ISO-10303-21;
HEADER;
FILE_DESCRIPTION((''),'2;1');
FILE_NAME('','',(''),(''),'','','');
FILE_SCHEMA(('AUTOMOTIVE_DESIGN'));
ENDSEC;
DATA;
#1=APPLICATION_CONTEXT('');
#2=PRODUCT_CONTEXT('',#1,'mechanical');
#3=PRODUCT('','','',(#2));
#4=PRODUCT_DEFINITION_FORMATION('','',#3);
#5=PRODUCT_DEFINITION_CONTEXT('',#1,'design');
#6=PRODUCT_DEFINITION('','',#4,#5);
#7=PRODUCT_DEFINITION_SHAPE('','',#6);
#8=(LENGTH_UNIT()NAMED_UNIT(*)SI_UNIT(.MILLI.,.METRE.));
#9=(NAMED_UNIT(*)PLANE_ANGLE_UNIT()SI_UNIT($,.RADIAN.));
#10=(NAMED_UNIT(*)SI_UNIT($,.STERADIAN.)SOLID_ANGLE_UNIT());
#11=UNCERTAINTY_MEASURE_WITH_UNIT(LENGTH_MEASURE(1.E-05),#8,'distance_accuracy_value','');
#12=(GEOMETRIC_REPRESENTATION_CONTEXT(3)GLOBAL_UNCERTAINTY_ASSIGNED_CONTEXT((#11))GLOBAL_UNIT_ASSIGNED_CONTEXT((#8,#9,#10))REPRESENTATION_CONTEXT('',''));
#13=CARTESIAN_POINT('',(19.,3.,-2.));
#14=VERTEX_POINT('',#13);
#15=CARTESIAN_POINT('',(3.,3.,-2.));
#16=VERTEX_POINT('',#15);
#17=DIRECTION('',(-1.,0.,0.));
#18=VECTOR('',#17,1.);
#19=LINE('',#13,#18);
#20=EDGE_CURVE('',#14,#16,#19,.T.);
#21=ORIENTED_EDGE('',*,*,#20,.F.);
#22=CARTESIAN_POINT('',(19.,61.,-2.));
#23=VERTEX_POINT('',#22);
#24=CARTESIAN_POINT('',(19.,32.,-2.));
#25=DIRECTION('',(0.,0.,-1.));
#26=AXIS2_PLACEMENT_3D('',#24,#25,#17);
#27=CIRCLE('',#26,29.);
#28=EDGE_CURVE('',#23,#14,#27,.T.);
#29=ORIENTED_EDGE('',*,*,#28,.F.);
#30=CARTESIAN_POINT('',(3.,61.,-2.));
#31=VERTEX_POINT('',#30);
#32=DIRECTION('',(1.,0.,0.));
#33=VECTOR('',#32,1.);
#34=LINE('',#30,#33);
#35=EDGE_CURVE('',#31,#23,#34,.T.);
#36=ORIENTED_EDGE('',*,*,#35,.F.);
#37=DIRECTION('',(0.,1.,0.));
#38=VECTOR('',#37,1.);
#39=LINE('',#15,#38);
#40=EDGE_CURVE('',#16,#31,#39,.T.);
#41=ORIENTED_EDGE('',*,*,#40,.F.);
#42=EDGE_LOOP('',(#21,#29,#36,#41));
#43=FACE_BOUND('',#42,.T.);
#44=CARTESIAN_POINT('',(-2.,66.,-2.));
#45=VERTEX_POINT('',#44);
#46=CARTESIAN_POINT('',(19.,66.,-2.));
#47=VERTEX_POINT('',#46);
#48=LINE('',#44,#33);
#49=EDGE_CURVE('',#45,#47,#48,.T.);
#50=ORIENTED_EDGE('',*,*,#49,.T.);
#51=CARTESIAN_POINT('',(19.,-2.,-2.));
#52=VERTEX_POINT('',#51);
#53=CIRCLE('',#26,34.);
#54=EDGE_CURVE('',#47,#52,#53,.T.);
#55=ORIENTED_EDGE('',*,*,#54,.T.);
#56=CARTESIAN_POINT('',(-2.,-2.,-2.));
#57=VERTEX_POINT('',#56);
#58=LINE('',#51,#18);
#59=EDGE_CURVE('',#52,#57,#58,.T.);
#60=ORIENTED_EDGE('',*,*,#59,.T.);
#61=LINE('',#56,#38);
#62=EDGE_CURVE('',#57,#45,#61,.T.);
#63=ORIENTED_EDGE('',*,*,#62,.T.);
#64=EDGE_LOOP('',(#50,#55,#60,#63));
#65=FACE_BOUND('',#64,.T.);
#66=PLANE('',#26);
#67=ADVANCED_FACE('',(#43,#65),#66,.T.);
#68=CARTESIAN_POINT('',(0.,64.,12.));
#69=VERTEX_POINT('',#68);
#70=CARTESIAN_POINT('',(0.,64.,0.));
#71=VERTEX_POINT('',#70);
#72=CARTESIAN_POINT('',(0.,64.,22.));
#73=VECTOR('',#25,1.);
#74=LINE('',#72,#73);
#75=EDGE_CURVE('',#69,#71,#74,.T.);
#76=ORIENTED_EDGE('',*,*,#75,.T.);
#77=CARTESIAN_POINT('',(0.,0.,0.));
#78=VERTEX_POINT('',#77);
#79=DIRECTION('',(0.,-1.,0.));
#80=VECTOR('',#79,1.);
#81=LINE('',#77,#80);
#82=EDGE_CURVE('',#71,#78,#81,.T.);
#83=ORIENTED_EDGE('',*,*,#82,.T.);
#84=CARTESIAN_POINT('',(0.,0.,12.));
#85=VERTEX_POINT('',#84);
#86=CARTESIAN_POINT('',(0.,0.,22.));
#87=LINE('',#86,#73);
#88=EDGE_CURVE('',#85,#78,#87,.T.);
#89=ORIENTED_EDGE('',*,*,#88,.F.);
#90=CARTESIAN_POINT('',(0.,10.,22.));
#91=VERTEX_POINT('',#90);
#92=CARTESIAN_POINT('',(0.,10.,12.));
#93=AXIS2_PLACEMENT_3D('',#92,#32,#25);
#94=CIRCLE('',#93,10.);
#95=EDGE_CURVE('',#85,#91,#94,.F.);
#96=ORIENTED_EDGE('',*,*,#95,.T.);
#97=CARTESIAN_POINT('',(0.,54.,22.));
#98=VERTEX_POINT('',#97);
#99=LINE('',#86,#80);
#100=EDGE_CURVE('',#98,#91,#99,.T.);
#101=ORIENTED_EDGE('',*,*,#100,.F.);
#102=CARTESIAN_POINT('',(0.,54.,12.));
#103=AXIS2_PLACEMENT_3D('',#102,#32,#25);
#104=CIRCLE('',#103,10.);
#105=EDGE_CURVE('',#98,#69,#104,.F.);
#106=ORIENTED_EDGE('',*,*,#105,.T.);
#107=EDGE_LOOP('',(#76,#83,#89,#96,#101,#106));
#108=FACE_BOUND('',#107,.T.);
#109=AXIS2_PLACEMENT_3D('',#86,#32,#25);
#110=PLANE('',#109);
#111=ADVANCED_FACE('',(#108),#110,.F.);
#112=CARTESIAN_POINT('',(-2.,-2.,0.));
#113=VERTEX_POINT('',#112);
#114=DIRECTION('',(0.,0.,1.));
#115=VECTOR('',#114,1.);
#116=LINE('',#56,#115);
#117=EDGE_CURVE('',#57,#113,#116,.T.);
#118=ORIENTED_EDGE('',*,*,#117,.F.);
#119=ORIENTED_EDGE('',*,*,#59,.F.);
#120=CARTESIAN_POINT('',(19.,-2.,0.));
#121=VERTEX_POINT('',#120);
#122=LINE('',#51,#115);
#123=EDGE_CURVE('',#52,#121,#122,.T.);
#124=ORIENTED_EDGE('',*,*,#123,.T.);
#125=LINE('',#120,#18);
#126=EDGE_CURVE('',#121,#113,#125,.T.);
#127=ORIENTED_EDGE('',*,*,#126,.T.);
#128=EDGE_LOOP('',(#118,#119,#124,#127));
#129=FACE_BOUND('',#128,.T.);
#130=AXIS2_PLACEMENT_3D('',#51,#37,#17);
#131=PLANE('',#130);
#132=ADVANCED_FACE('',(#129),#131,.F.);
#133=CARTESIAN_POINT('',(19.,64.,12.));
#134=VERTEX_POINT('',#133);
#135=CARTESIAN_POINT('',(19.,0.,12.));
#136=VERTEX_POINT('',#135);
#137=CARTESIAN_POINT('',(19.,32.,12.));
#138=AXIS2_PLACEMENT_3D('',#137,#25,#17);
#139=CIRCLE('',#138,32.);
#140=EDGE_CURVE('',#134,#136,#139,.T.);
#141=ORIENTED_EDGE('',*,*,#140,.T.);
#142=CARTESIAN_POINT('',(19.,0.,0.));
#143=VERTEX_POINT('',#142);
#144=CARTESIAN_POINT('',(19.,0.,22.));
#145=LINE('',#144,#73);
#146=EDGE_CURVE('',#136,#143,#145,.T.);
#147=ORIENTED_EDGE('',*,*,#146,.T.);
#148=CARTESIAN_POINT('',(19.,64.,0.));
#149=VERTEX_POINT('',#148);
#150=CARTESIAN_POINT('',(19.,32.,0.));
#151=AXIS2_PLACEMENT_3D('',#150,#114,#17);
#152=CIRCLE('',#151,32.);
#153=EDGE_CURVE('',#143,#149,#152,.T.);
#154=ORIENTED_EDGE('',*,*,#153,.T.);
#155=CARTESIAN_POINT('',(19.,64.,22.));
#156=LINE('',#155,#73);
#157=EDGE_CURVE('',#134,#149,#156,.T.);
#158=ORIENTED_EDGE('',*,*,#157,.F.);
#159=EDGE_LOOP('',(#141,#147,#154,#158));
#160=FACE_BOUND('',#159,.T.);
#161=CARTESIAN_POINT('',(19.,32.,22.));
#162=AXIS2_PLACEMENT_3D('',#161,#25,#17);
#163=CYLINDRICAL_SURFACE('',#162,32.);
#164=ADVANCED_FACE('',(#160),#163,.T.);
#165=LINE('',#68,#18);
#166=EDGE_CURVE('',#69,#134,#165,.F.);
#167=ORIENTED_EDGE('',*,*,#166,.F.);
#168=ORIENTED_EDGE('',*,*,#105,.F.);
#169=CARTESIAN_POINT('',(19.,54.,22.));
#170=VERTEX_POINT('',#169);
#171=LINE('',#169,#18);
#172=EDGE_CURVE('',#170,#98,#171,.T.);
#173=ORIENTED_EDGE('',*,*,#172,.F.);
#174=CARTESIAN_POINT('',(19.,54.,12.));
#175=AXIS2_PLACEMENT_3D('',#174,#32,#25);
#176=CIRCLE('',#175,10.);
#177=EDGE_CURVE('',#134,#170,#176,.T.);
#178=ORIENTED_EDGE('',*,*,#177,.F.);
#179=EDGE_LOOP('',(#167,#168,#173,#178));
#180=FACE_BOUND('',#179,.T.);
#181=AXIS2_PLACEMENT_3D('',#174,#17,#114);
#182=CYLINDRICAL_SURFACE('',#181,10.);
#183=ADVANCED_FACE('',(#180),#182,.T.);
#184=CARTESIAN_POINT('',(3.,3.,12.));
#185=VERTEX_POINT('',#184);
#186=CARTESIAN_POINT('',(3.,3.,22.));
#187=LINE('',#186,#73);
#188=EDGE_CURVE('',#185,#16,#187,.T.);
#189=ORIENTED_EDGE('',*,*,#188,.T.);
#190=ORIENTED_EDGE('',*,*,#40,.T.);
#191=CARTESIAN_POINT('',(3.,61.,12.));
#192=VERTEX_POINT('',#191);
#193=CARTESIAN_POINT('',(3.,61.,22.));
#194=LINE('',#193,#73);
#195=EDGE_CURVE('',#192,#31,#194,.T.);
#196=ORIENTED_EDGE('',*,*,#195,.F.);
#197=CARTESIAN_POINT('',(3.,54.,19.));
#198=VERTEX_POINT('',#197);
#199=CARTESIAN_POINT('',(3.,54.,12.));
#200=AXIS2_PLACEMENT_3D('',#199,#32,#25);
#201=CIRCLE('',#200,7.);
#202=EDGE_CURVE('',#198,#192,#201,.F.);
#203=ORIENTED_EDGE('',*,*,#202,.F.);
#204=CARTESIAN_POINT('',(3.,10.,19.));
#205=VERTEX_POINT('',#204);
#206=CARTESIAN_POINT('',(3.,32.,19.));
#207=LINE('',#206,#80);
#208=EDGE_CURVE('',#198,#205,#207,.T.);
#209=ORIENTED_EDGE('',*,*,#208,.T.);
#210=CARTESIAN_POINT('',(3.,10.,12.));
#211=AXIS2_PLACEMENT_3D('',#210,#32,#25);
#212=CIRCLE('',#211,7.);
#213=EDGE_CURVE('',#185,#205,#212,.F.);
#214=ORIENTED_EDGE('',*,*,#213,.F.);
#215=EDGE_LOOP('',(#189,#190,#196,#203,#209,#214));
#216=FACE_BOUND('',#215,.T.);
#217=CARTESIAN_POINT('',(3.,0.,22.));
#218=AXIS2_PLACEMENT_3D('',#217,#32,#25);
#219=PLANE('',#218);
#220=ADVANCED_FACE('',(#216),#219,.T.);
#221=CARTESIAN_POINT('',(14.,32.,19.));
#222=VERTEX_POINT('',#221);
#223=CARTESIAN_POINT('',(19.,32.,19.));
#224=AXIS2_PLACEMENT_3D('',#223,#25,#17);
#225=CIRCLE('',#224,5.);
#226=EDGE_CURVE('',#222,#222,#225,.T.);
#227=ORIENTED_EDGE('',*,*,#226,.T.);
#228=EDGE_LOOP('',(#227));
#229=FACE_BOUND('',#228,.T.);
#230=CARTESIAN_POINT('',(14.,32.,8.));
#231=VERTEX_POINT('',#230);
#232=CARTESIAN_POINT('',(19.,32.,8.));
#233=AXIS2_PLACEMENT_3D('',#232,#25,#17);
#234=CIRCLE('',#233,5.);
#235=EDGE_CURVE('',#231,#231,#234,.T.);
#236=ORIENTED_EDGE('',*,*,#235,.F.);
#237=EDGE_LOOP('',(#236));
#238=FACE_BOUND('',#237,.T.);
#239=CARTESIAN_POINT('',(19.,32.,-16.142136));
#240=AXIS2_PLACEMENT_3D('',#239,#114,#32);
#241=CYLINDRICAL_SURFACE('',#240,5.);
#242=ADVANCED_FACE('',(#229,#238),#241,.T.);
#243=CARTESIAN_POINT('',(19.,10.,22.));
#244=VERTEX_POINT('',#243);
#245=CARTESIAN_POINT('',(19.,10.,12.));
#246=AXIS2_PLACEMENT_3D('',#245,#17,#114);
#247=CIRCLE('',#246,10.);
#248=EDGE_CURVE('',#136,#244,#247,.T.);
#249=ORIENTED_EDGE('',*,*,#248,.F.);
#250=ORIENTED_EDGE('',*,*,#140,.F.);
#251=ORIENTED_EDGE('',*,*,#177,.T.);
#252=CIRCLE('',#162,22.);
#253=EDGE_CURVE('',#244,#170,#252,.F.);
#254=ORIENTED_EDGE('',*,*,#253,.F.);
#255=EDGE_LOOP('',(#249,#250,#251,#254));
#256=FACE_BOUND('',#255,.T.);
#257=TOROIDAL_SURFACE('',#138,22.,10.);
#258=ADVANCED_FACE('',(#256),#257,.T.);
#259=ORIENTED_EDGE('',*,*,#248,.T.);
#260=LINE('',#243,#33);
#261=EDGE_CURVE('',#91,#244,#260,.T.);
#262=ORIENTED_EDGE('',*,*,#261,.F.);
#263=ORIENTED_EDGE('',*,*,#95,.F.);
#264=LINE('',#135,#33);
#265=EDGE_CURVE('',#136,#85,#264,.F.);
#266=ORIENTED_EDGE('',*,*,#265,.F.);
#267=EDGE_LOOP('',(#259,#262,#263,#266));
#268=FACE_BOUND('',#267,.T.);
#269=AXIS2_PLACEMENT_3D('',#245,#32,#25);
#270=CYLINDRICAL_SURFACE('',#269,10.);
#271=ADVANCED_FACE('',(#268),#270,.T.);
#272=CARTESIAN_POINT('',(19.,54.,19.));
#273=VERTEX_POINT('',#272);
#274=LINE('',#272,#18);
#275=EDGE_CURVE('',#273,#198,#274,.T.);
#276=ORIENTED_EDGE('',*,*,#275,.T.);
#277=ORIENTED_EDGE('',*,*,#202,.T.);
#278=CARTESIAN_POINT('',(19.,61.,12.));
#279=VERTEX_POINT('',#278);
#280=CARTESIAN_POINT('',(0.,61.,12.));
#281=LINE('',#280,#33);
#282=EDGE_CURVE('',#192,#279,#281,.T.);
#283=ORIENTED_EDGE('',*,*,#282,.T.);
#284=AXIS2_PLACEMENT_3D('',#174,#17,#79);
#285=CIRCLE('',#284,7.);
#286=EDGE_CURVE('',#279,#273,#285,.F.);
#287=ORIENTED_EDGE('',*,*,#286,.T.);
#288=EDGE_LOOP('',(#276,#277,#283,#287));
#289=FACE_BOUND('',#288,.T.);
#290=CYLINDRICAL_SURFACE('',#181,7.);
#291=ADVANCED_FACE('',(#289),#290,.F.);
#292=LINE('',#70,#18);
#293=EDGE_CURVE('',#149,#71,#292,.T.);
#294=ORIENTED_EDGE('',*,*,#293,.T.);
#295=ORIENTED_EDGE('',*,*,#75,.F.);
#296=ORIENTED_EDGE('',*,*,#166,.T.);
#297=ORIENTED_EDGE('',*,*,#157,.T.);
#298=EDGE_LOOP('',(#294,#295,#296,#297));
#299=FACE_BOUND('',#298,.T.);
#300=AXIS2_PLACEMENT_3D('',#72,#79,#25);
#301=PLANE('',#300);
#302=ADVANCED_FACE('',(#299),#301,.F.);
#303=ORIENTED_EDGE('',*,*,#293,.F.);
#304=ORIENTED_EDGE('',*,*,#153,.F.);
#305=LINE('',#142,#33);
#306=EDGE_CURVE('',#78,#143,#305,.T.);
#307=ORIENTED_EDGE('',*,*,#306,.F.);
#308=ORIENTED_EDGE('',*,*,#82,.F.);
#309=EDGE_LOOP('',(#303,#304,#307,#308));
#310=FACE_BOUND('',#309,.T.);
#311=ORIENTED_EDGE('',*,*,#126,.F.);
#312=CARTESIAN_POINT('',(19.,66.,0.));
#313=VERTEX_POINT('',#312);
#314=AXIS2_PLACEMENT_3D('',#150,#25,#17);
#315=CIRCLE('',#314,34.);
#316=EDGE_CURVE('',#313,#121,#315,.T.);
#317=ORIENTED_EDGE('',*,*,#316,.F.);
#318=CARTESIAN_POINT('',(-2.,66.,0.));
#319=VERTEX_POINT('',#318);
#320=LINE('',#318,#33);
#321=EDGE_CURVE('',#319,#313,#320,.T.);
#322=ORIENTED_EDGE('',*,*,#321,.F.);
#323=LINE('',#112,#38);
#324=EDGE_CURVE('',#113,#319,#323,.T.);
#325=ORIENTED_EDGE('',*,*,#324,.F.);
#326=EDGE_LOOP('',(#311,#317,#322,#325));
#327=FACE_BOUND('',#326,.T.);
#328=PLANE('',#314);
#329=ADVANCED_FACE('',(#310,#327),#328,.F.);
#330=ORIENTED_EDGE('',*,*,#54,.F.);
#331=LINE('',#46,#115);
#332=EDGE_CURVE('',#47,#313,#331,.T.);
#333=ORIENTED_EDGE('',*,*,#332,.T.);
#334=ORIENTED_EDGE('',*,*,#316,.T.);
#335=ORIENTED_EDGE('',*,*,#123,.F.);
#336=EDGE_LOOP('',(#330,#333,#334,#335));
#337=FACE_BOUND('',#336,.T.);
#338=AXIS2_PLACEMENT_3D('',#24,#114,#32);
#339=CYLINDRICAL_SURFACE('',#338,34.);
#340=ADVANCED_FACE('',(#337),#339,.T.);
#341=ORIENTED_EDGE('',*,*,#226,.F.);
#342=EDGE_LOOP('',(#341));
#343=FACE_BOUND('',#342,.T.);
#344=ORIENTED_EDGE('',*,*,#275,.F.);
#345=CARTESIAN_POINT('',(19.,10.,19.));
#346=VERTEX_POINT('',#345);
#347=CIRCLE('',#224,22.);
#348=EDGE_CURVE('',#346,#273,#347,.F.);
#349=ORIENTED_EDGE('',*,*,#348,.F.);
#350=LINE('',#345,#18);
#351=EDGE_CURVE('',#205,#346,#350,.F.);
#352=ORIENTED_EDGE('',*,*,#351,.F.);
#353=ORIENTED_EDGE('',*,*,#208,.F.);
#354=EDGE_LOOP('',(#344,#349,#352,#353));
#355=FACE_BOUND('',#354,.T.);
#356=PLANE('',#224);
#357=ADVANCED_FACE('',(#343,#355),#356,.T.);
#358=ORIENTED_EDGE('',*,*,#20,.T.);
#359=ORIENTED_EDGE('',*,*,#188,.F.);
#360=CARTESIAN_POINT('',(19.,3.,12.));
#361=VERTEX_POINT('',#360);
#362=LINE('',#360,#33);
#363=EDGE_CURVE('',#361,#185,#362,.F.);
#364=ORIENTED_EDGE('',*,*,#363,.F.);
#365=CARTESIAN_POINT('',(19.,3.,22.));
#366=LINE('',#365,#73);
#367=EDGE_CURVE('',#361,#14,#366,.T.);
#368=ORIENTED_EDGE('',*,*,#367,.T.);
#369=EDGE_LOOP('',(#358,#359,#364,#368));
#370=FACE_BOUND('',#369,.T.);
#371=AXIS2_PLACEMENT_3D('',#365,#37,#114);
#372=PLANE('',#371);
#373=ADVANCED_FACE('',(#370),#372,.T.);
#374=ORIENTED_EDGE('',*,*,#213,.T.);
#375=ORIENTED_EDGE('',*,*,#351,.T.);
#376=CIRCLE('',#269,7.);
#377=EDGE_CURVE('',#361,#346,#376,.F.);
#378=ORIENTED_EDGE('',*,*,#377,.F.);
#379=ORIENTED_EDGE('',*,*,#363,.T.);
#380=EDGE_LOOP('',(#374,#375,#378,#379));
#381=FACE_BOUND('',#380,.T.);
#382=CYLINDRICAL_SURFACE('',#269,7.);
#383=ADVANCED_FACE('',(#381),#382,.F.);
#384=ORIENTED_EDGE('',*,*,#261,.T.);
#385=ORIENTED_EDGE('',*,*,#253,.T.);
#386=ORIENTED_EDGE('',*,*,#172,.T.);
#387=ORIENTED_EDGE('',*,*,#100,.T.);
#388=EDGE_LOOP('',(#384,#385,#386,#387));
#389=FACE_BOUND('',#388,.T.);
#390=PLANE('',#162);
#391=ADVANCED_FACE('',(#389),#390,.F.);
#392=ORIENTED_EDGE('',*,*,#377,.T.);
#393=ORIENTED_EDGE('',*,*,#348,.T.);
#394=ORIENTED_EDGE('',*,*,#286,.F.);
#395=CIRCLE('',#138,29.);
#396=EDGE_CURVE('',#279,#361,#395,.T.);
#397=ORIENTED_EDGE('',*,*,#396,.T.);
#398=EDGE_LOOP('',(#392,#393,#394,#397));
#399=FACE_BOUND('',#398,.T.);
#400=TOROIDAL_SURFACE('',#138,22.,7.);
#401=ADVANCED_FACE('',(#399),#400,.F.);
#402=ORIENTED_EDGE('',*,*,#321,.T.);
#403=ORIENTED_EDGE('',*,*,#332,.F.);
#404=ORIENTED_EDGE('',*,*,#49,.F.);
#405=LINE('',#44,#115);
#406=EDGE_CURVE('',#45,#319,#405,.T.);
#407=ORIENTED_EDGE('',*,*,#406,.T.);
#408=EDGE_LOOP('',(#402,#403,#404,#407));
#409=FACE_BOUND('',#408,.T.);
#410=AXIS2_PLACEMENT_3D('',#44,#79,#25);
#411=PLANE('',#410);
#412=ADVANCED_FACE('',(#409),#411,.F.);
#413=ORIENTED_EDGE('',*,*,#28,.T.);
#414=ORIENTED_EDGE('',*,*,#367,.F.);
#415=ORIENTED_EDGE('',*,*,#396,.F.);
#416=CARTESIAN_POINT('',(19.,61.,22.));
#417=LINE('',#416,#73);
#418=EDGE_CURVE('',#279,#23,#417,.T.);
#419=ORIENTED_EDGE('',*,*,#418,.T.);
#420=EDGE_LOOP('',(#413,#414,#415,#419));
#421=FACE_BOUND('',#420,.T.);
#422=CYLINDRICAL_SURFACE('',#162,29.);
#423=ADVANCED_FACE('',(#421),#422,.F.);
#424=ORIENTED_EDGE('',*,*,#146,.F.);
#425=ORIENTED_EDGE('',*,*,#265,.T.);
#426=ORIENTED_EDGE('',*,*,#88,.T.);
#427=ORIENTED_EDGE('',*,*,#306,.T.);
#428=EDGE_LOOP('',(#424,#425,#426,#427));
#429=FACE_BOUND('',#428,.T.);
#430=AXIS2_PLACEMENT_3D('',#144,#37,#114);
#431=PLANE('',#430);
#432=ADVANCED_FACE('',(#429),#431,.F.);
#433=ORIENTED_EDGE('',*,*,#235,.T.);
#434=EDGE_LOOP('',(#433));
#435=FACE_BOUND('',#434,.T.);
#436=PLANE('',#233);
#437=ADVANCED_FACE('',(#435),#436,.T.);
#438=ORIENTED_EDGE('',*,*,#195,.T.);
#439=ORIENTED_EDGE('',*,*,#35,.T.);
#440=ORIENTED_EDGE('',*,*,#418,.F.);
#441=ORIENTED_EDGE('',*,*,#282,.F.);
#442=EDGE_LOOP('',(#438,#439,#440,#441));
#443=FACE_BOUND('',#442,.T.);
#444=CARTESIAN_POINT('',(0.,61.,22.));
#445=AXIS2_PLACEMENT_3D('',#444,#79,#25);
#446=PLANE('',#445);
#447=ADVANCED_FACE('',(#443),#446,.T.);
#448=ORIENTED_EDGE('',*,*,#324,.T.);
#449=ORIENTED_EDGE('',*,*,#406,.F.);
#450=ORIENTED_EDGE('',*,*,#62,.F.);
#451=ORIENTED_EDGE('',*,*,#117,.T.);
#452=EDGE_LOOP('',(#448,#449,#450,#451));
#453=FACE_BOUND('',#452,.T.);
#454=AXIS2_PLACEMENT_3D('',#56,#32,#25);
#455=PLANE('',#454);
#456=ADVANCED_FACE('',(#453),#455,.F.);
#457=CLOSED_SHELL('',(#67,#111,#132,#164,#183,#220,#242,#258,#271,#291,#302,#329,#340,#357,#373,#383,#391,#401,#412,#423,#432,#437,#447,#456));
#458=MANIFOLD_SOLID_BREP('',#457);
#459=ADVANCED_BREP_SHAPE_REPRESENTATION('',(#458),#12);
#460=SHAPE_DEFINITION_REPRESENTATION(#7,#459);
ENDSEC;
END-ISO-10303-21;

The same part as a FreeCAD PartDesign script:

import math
import FreeCAD as App
import Part
import Sketcher
Q = App.Units.Quantity


def edges_at(feature, points):
    """Names of the edges that pass closest to the given points."""
    edges = feature.Shape.Edges
    near = lambda p: min(range(len(edges)), key=lambda i: edges[i].distToShape(Part.Vertex(*p))[0])
    return sorted({f"Edge{near(p) + 1}" for p in points})


def faces_at(feature, points):
    """Names of the faces that lie closest to the given points."""
    faces = feature.Shape.Faces
    near = lambda p: min(range(len(faces)), key=lambda i: faces[i].distToShape(Part.Vertex(*p))[0])
    return sorted({f"Face{near(p) + 1}" for p in points})

doc = App.newDocument("Part")
body = doc.addObject("PartDesign::Body", "Body")

# Sketch on XY plane
sketch1 = body.newObject("Sketcher::SketchObject", "Sketch")
sketch1.AttachmentSupport = (doc.getObject("XY_Plane"), [""])
sketch1.MapMode = "FlatFace"
sketch1.addGeometry([
    Part.LineSegment(App.Vector(0, 64, 0), App.Vector(0, 0, 0)),
    Part.LineSegment(App.Vector(0, 0, 0), App.Vector(19, 0, 0)),
    Part.ArcOfCircle(Part.Circle(App.Vector(19, 32, 0), App.Vector(0, 0, 1), 32), math.radians(-90), math.radians(90)),
    Part.LineSegment(App.Vector(19, 64, 0), App.Vector(0, 64, 0)),
], False)
sketch1.addConstraint([
    Sketcher.Constraint("Coincident", 0, 2, 1, 1),
    Sketcher.Constraint("Tangent", 1, 2, 2, 1),
    Sketcher.Constraint("Tangent", 2, 2, 3, 1),
    Sketcher.Constraint("Coincident", 3, 2, 0, 1),
    Sketcher.Constraint("Vertical", 0),
    Sketcher.Constraint("Horizontal", 1),
    Sketcher.Constraint("Horizontal", 3),
    Sketcher.Constraint("Coincident", 0, 2, -1, 1),
    Sketcher.Constraint("Radius", 2, Q("32 mm")),
    Sketcher.Constraint("DistanceX", 1, 1, 1, 2, Q("19 mm")),
])
pad1 = body.newObject("PartDesign::Pad", "Pad")
pad1.Profile = sketch1
pad1.Length = 22
doc.recompute()

fillet = body.newObject("PartDesign::Fillet", "Fillet")
fillet.Base = (pad1, edges_at(pad1, [(9.5, 64, 22), (9.5, 0, 22), (51, 32, 22)]))
fillet.Radius = 10
doc.recompute()

thickness = body.newObject("PartDesign::Thickness", "Thickness")
thickness.Base = (fillet, faces_at(fillet, [(25.5, 32, 0)]))
thickness.Value = 3
thickness.Reversed = True
thickness.Join = "Intersection"

# Sketch on XY plane
sketch2 = body.newObject("Sketcher::SketchObject", "Sketch001")
sketch2.AttachmentSupport = (doc.getObject("XY_Plane"), [""])
sketch2.MapMode = "FlatFace"
sketch2.addGeometry([
    Part.LineSegment(App.Vector(-2, -2, 0), App.Vector(-2, 66, 0)),  # 0
    Part.LineSegment(App.Vector(-2, 66, 0), App.Vector(19, 66, 0)),  # 1
    Part.ArcOfCircle(Part.Circle(App.Vector(19, 32, 0), App.Vector(0, 0, 1), 34), math.radians(-90), math.radians(90)),  # 2
    Part.LineSegment(App.Vector(19, -2, 0), App.Vector(-2, -2, 0)),  # 3
    Part.LineSegment(App.Vector(3, 61, 0), App.Vector(3, 3, 0)),  # 4
    Part.LineSegment(App.Vector(3, 3, 0), App.Vector(19, 3, 0)),  # 5
    Part.ArcOfCircle(Part.Circle(App.Vector(19, 32, 0), App.Vector(0, 0, 1), 29), math.radians(-90), math.radians(90)),  # 6
    Part.LineSegment(App.Vector(19, 61, 0), App.Vector(3, 61, 0)),  # 7
], False)
sketch2.addConstraint([
    Sketcher.Constraint("Coincident", 0, 2, 1, 1),
    Sketcher.Constraint("Tangent", 1, 2, 2, 2),
    Sketcher.Constraint("Tangent", 2, 1, 3, 1),
    Sketcher.Constraint("Coincident", 3, 2, 0, 1),
    Sketcher.Constraint("Coincident", 4, 2, 5, 1),
    Sketcher.Constraint("Tangent", 5, 2, 6, 1),
    Sketcher.Constraint("Tangent", 6, 2, 7, 1),
    Sketcher.Constraint("Coincident", 7, 2, 4, 1),
    Sketcher.Constraint("Vertical", 0),
    Sketcher.Constraint("Horizontal", 1),
    Sketcher.Constraint("Horizontal", 3),
    Sketcher.Constraint("Vertical", 4),
    Sketcher.Constraint("Horizontal", 5),
    Sketcher.Constraint("Horizontal", 7),
    Sketcher.Constraint("Coincident", 6, 3, 2, 3),
    Sketcher.Constraint("Radius", 2, Q("34 mm")),
    Sketcher.Constraint("Radius", 6, Q("29 mm")),
    Sketcher.Constraint("DistanceX", 1, 1, 1, 2, Q("21 mm")),
    Sketcher.Constraint("DistanceX", 5, 1, 5, 2, Q("16 mm")),
    Sketcher.Constraint("DistanceX", -1, 1, 2, 3, Q("19 mm")),
    Sketcher.Constraint("DistanceY", -1, 1, 2, 3, Q("32 mm")),
])
pad2 = body.newObject("PartDesign::Pad", "Pad001")
pad2.Profile = sketch2
pad2.Length = 2
pad2.Reversed = True

# Sketch on XY plane
sketch3 = body.newObject("Sketcher::SketchObject", "Sketch002")
sketch3.AttachmentSupport = (doc.getObject("XY_Plane"), [""])
sketch3.MapMode = "FlatFace"
sketch3.AttachmentOffset = App.Placement(App.Vector(0, 0, 19), App.Rotation())
sketch3.addGeometry(Part.Circle(App.Vector(19, 32, 0), App.Vector(0, 0, 1), 5), False)
sketch3.addConstraint([
    Sketcher.Constraint("Diameter", 0, Q("10 mm")),
    Sketcher.Constraint("DistanceX", -1, 1, 0, 3, Q("19 mm")),
    Sketcher.Constraint("DistanceY", -1, 1, 0, 3, Q("32 mm")),
])
pad3 = body.newObject("PartDesign::Pad", "Pad002")
pad3.Profile = sketch3
pad3.Length = 11
pad3.Reversed = True

doc.recompute()
